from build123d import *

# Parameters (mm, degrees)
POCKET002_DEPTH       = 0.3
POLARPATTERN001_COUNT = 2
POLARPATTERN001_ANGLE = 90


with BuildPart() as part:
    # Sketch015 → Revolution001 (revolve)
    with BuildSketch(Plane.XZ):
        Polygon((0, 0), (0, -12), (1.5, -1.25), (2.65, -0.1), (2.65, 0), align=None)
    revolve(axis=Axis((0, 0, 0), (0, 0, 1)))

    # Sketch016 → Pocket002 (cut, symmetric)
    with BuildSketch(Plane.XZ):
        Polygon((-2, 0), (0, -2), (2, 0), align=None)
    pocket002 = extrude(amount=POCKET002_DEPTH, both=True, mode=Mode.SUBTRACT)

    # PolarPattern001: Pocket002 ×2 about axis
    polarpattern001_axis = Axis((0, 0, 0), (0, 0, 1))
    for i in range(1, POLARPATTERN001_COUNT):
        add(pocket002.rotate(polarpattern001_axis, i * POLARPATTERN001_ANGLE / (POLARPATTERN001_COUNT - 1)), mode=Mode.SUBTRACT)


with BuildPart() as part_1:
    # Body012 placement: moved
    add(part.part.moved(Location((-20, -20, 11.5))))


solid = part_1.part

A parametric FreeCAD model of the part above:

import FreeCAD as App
import Part
import Sketcher
from FreeCAD import Vector
Q = App.Units.Quantity


def add_polygon(sketch, points):
    """Adds a closed chain of lines whose ends are joined by coincident constraints."""
    first, n = sketch.GeometryCount, len(points)
    for a, b in zip(points, points[1:] + points[:1]):
        sketch.addGeometry(Part.LineSegment(App.Vector(*a, 0), App.Vector(*b, 0)), False)
    for i in range(n):
        sketch.addConstraint(Sketcher.Constraint("Coincident", first + i, 2, first + (i + 1) % n, 1))

doc = App.newDocument("Part")
body = doc.addObject("PartDesign::Body", "Body")

# Sketch on XZ plane
sketch1 = body.newObject("Sketcher::SketchObject", "Sketch")
sketch1.AttachmentSupport = (doc.getObject("XZ_Plane"), [""])
sketch1.MapMode = "FlatFace"
add_polygon(sketch1, [(0, 0), (0, -12), (1.5, -1.25), (2.65, -0.1), (2.65, 0)])  # lines 0-4
sketch1.addConstraint(Sketcher.Constraint("Vertical", 0))
sketch1.addConstraint(Sketcher.Constraint("Vertical", 3))
sketch1.addConstraint(Sketcher.Constraint("Horizontal", 4))
sketch1.addConstraint(Sketcher.Constraint("Coincident", 4, 2, -1, 1))
sketch1.addConstraint(Sketcher.Constraint("DistanceY", 0, 2, 0, 1, 12.0))
sketch1.addConstraint(Sketcher.Constraint("Angle", 2, Q("45 deg")))
sketch1.addConstraint(Sketcher.Constraint("DistanceY", 3, 1, 3, 2, 0.1))
sketch1.addConstraint(Sketcher.Constraint("DistanceX", 4, 2, 4, 1, 2.65))
sketch1.addConstraint(Sketcher.Constraint("DistanceX", -1, 1, 1, 2, 1.5))
revolution = body.newObject("PartDesign::Revolution", "Revolution")
revolution.Profile = sketch1
revolution.ReferenceAxis = (sketch1, ["V_Axis"])
revolution.Angle = 360

# Sketch on XZ plane
sketch2 = body.newObject("Sketcher::SketchObject", "Sketch001")
sketch2.AttachmentSupport = (doc.getObject("XZ_Plane"), [""])
sketch2.MapMode = "FlatFace"
add_polygon(sketch2, [(-2, 0), (0, -2), (2, 0)])  # lines 0-2
sketch2.addConstraint(Sketcher.Constraint("Horizontal", 2))
sketch2.addConstraint(Sketcher.Constraint("Symmetric", 1, 2, 2, 2, -1, 1))
sketch2.addConstraint(Sketcher.Constraint("PointOnObject", 0, 2, -2))
sketch2.addConstraint(Sketcher.Constraint("Perpendicular", 0, 1))
sketch2.addConstraint(Sketcher.Constraint("DistanceX", 2, 2, 2, 1, 4.0))
pocket1 = body.newObject("PartDesign::Pocket", "Pocket")
pocket1.Profile = sketch2
pocket1.Length = 0.6
pocket1.Midplane = True
doc.recompute()

polarpattern = body.newObject("PartDesign::PolarPattern", "PolarPattern")
polarpattern.Originals = [pocket1]
polarpattern.Axis = (doc.getObject("Z_Axis"), [""])
polarpattern.Angle = 90
polarpattern.Occurrences = 2
body.Tip = polarpattern
body2 = doc.addObject("PartDesign::Body", "Body001")
doc.recompute()

body.Placement = App.Placement(Vector(-20, -20, 11.5), App.Rotation(Vector(0, 0, 1), 0))
boolean = body2.newObject("PartDesign::Boolean", "Boolean")
boolean.Type = "Fuse"
boolean.addObjects([body])

doc.recompute()
